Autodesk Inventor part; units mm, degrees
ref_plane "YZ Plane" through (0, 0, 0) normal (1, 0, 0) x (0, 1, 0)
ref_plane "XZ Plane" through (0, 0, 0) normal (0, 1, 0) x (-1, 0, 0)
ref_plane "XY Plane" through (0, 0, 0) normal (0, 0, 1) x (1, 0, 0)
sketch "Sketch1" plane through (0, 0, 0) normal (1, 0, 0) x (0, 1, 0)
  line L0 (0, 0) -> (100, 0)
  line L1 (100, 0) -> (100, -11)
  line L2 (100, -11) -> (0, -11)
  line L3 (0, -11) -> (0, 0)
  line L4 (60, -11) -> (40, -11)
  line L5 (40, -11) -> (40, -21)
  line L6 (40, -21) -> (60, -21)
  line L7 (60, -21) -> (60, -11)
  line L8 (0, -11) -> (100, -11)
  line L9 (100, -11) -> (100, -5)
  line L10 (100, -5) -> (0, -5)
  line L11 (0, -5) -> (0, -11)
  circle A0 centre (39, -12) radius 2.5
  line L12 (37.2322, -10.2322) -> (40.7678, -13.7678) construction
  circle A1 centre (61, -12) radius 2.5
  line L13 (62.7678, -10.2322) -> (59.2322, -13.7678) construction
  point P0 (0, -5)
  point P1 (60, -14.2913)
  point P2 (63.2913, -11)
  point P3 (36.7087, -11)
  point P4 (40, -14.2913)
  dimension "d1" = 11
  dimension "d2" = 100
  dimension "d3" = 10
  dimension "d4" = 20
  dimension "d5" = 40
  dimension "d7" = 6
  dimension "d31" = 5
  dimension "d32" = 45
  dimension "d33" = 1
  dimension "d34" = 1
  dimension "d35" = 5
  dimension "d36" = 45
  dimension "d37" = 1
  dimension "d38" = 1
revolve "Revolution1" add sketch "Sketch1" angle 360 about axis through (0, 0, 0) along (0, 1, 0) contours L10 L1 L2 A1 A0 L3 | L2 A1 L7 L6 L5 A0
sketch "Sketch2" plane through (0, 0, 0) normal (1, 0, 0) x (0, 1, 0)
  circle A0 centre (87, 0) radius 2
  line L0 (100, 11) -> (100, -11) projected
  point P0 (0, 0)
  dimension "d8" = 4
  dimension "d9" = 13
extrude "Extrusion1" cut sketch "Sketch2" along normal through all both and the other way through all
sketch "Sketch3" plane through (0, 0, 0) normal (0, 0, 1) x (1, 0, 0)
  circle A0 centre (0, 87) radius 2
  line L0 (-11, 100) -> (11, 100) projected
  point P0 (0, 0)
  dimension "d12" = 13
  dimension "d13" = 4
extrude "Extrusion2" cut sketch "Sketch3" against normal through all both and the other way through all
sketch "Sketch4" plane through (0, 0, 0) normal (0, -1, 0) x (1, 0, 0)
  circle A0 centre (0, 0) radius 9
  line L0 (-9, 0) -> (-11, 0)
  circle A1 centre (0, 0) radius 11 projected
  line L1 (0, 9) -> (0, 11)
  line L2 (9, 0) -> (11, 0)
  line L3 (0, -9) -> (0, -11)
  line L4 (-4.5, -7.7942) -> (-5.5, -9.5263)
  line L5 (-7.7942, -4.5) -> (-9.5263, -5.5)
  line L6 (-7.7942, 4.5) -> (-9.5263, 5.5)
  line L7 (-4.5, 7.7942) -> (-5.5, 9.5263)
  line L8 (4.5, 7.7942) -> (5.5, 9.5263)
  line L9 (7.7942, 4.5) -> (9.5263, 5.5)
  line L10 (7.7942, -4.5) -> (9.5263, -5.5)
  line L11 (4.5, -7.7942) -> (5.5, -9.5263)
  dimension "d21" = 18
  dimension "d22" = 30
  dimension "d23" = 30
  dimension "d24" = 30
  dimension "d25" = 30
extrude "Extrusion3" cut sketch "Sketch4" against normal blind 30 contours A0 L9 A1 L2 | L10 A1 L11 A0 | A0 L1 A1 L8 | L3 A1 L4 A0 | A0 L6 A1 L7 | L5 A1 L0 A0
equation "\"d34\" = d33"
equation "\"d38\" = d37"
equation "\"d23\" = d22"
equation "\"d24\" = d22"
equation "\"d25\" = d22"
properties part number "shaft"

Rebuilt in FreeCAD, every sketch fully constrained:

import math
import FreeCAD as App
import Part
import Sketcher
from FreeCAD import Vector
Q = App.Units.Quantity

doc = App.newDocument("Part")
params = doc.addObject("Spreadsheet::Sheet", "Params")
for row, (alias, value) in enumerate([
    ("sketch1_radius", "2.5 mm"),
    ("sketch1_width", "100 mm"),
    ("sketch1_width2", "20 mm"),
    ("sketch1_height", "6 mm"),
    ("sketch1_width3", "1 mm"),
    ("revolution_angle", "360 deg"),
    ("sketch2_diameter", "4 mm"),
    ("sketch3_diameter", "4 mm"),
    ("sketch4_radius", "9 mm"),
    ("sketch4_radius2", "11 mm"),
    ("pocket3_length", "30 mm"),
], start=1):
    params.set(f"A{row}", alias)
    params.set(f"B{row}", "=" + value)
    params.setAlias(f"B{row}", alias)

body = doc.addObject("PartDesign::Body", "Body")

# Sketch on YZ plane
sketch1 = body.newObject("Sketcher::SketchObject", "Sketch")
sketch1.AttachmentSupport = (doc.getObject("YZ_Plane"), [""])
sketch1.MapMode = "FlatFace"
sketch1.addGeometry(Part.LineSegment(Vector(100, -5, 0), Vector(0, -5, 0)), False)
sketch1.addGeometry(Part.LineSegment(Vector(0, -5, 0), Vector(0, -11, 0)), False)
sketch1.addGeometry(Part.LineSegment(Vector(0, -11, 0), Vector(36.7, -11, 0)), False)
sketch1.addGeometry(Part.ArcOfCircle(Part.Circle(Vector(39, -12, 0), Vector(0, 0, 1), 2.5), math.radians(-66), math.radians(156)), False)
sketch1.addGeometry(Part.LineSegment(Vector(40, -14.3, 0), Vector(40, -21, 0)), False)
sketch1.addGeometry(Part.LineSegment(Vector(40, -21, 0), Vector(60, -21, 0)), False)
sketch1.addGeometry(Part.LineSegment(Vector(60, -21, 0), Vector(60, -14.3, 0)), False)
sketch1.addGeometry(Part.ArcOfCircle(Part.Circle(Vector(61, -12, 0), Vector(0, 0, 1), 2.5), math.radians(24), math.radians(246)), False)
sketch1.addGeometry(Part.LineSegment(Vector(63.3, -11, 0), Vector(100, -11, 0)), False)
sketch1.addGeometry(Part.LineSegment(Vector(100, -11, 0), Vector(100, -5, 0)), False)
sketch1.addConstraint(Sketcher.Constraint("Coincident", 0, 2, 1, 1))
sketch1.addConstraint(Sketcher.Constraint("Coincident", 1, 2, 2, 1))
sketch1.addConstraint(Sketcher.Constraint("Coincident", 2, 2, 3, 2))
sketch1.addConstraint(Sketcher.Constraint("Coincident", 3, 1, 4, 1))
sketch1.addConstraint(Sketcher.Constraint("Coincident", 4, 2, 5, 1))
sketch1.addConstraint(Sketcher.Constraint("Coincident", 5, 2, 6, 1))
sketch1.addConstraint(Sketcher.Constraint("Coincident", 6, 2, 7, 2))
sketch1.addConstraint(Sketcher.Constraint("Coincident", 7, 1, 8, 1))
sketch1.addConstraint(Sketcher.Constraint("Coincident", 8, 2, 9, 1))
sketch1.addConstraint(Sketcher.Constraint("Coincident", 9, 2, 0, 1))
sketch1.addConstraint(Sketcher.Constraint("Horizontal", 0))
sketch1.addConstraint(Sketcher.Constraint("Vertical", 1))
sketch1.addConstraint(Sketcher.Constraint("Horizontal", 2))
sketch1.addConstraint(Sketcher.Constraint("Vertical", 4))
sketch1.addConstraint(Sketcher.Constraint("Horizontal", 5))
sketch1.addConstraint(Sketcher.Constraint("Vertical", 6))
sketch1.addConstraint(Sketcher.Constraint("Horizontal", 8))
sketch1.addConstraint(Sketcher.Constraint("Vertical", 9))
sketch1.addConstraint(Sketcher.Constraint("Equal", 3, 7))
sketch1.addConstraint(Sketcher.Constraint("PointOnObject", 0, 2, -2))
sketch1.addConstraint(Sketcher.Constraint("Horizontal", 3, 3, 7, 3))
sketch1.addConstraint(Sketcher.Constraint("Horizontal", 3, 1, 6, 2))
sketch1.addConstraint(Sketcher.Constraint("Horizontal", 2, 2, 7, 1))
sketch1.addConstraint(Sketcher.Constraint("Equal", 2, 8))
sketch1.addConstraint(Sketcher.Constraint("Radius", 3, Q("2.5 mm")))
sketch1.addConstraint(Sketcher.Constraint("DistanceX", 0, 2, 0, 1, Q("100 mm")))
sketch1.addConstraint(Sketcher.Constraint("DistanceX", 5, 1, 5, 2, Q("20 mm")))
sketch1.addConstraint(Sketcher.Constraint("DistanceY", 1, 2, 1, 1, Q("6 mm")))
sketch1.addConstraint(Sketcher.Constraint("DistanceY", 0, 2, -1, 1, Q("5 mm")))
sketch1.addConstraint(Sketcher.Constraint("DistanceY", 3, 3, 1, 2, Q("1 mm")))
sketch1.addConstraint(Sketcher.Constraint("DistanceX", 3, 3, 3, 1, Q("1 mm")))
sketch1.addConstraint(Sketcher.Constraint("DistanceY", 4, 2, 2, 2, Q("10 mm")))
sketch1.setExpression("Constraints[24]", "Params.sketch1_radius")
sketch1.setExpression("Constraints[25]", "Params.sketch1_width")
sketch1.setExpression("Constraints[26]", "Params.sketch1_width2")
sketch1.setExpression("Constraints[27]", "Params.sketch1_height")
sketch1.setExpression("Constraints[30]", "Params.sketch1_width3")
revolution = body.newObject("PartDesign::Revolution", "Revolution")
revolution.Profile = sketch1
revolution.ReferenceAxis = (sketch1, ["H_Axis"])
revolution.setExpression("Angle", "Params.revolution_angle")

# Sketch on YZ plane
sketch2 = body.newObject("Sketcher::SketchObject", "Sketch001")
sketch2.AttachmentSupport = (doc.getObject("YZ_Plane"), [""])
sketch2.MapMode = "FlatFace"
sketch2.addGeometry(Part.Circle(Vector(87, 0, 0), Vector(0, 0, 1), 2), False)
sketch2.addConstraint(Sketcher.Constraint("PointOnObject", 0, 3, -1))
sketch2.addConstraint(Sketcher.Constraint("Diameter", 0, Q("4 mm")))
sketch2.addConstraint(Sketcher.Constraint("DistanceX", -1, 1, 0, 3, Q("87 mm")))
sketch2.setExpression("Constraints[1]", "Params.sketch2_diameter")
pocket1 = body.newObject("PartDesign::Pocket", "Pocket")
pocket1.Profile = sketch2
pocket1.Type = "ThroughAll"
pocket1.Midplane = True

# Sketch on XY plane
sketch3 = body.newObject("Sketcher::SketchObject", "Sketch002")
sketch3.AttachmentSupport = (doc.getObject("XY_Plane"), [""])
sketch3.MapMode = "FlatFace"
sketch3.addGeometry(Part.Circle(Vector(0, 87, 0), Vector(0, 0, 1), 2), False)
sketch3.addConstraint(Sketcher.Constraint("PointOnObject", 0, 3, -2))
sketch3.addConstraint(Sketcher.Constraint("Diameter", 0, Q("4 mm")))
sketch3.addConstraint(Sketcher.Constraint("DistanceY", -1, 1, 0, 3, Q("87 mm")))
sketch3.setExpression("Constraints[1]", "Params.sketch3_diameter")
pocket2 = body.newObject("PartDesign::Pocket", "Pocket001")
pocket2.Profile = sketch3
pocket2.Type = "ThroughAll"
pocket2.Midplane = True

# Sketch on XZ plane
sketch4 = body.newObject("Sketcher::SketchObject", "Sketch003")
sketch4.AttachmentSupport = (doc.getObject("XZ_Plane"), [""])
sketch4.MapMode = "FlatFace"
sketch4.addGeometry(Part.ArcOfCircle(Part.Circle(Vector(0, 0, 0), Vector(0, 0, 1), 9), math.radians(0), math.radians(30)), False)
sketch4.addGeometry(Part.LineSegment(Vector(9, 0, 0), Vector(11, 0, 0)), False)
sketch4.addGeometry(Part.ArcOfCircle(Part.Circle(Vector(0, 0, 0), Vector(0, 0, 1), 11), math.radians(0), math.radians(30)), False)
sketch4.addGeometry(Part.LineSegment(Vector(9.5, 5.5, 0), Vector(7.8, 4.5, 0)), False)
sketch4.addGeometry(Part.LineSegment(Vector(9.5, -5.5, 0), Vector(7.8, -4.5, 0)), False)
sketch4.addGeometry(Part.ArcOfCircle(Part.Circle(Vector(0, 0, 0), Vector(0, 0, 1), 9), math.radians(-60), math.radians(-30)), False)
sketch4.addGeometry(Part.LineSegment(Vector(4.5, -7.8, 0), Vector(5.5, -9.5, 0)), False)
sketch4.addGeometry(Part.ArcOfCircle(Part.Circle(Vector(0, 0, 0), Vector(0, 0, 1), 11), math.radians(-60), math.radians(-30)), False)
sketch4.addGeometry(Part.ArcOfCircle(Part.Circle(Vector(0, 0, 0), Vector(0, 0, 1), 9), math.radians(60), math.radians(90)), False)
sketch4.addGeometry(Part.LineSegment(Vector(4.5, 7.8, 0), Vector(5.5, 9.5, 0)), False)
sketch4.addGeometry(Part.ArcOfCircle(Part.Circle(Vector(0, 0, 0), Vector(0, 0, 1), 11), math.radians(60), math.radians(90)), False)
sketch4.addGeometry(Part.LineSegment(Vector(0, 11, 0), Vector(0, 9, 0)), False)
sketch4.addGeometry(Part.LineSegment(Vector(0, -11, 0), Vector(0, -9, 0)), False)
sketch4.addGeometry(Part.ArcOfCircle(Part.Circle(Vector(0, 0, 0), Vector(0, 0, 1), 9), math.radians(-120), math.radians(-90)), False)
sketch4.addGeometry(Part.LineSegment(Vector(-4.5, -7.8, 0), Vector(-5.5, -9.5, 0)), False)
sketch4.addGeometry(Part.ArcOfCircle(Part.Circle(Vector(0, 0, 0), Vector(0, 0, 1), 11), math.radians(-120), math.radians(-90)), False)
sketch4.addGeometry(Part.ArcOfCircle(Part.Circle(Vector(0, 0, 0), Vector(0, 0, 1), 9), math.radians(120), math.radians(150)), False)
sketch4.addGeometry(Part.LineSegment(Vector(-4.5, 7.8, 0), Vector(-5.5, 9.5, 0)), False)
sketch4.addGeometry(Part.ArcOfCircle(Part.Circle(Vector(0, 0, 0), Vector(0, 0, 1), 11), math.radians(120), math.radians(150)), False)
sketch4.addGeometry(Part.LineSegment(Vector(-9.5, 5.5, 0), Vector(-7.8, 4.5, 0)), False)
sketch4.addGeometry(Part.LineSegment(Vector(-9.5, -5.5, 0), Vector(-7.8, -4.5, 0)), False)
sketch4.addGeometry(Part.ArcOfCircle(Part.Circle(Vector(0, 0, 0), Vector(0, 0, 1), 9), math.radians(180), math.radians(210)), False)
sketch4.addGeometry(Part.LineSegment(Vector(-9, 0, 0), Vector(-11, 0, 0)), False)
sketch4.addGeometry(Part.ArcOfCircle(Part.Circle(Vector(0, 0, 0), Vector(0, 0, 1), 11), math.radians(180), math.radians(210)), False)
sketch4.addConstraint(Sketcher.Constraint("Coincident", 0, 1, 1, 1))
sketch4.addConstraint(Sketcher.Constraint("Coincident", 1, 2, 2, 1))
sketch4.addConstraint(Sketcher.Constraint("Coincident", 2, 2, 3, 1))
sketch4.addConstraint(Sketcher.Constraint("Coincident", 3, 2, 0, 2))
sketch4.addConstraint(Sketcher.Constraint("Coincident", 4, 2, 5, 2))
sketch4.addConstraint(Sketcher.Constraint("Coincident", 5, 1, 6, 1))
sketch4.addConstraint(Sketcher.Constraint("Coincident", 6, 2, 7, 1))
sketch4.addConstraint(Sketcher.Constraint("Coincident", 7, 2, 4, 1))
sketch4.addConstraint(Sketcher.Constraint("Coincident", 8, 1, 9, 1))
sketch4.addConstraint(Sketcher.Constraint("Coincident", 9, 2, 10, 1))
sketch4.addConstraint(Sketcher.Constraint("Coincident", 10, 2, 11, 1))
sketch4.addConstraint(Sketcher.Constraint("Coincident", 11, 2, 8, 2))
sketch4.addConstraint(Sketcher.Constraint("Coincident", 12, 2, 13, 2))
sketch4.addConstraint(Sketcher.Constraint("Coincident", 13, 1, 14, 1))
sketch4.addConstraint(Sketcher.Constraint("Coincident", 14, 2, 15, 1))
sketch4.addConstraint(Sketcher.Constraint("Coincident", 15, 2, 12, 1))
sketch4.addConstraint(Sketcher.Constraint("Coincident", 16, 1, 17, 1))
sketch4.addConstraint(Sketcher.Constraint("Coincident", 17, 2, 18, 1))
sketch4.addConstraint(Sketcher.Constraint("Coincident", 18, 2, 19, 1))
sketch4.addConstraint(Sketcher.Constraint("Coincident", 19, 2, 16, 2))
sketch4.addConstraint(Sketcher.Constraint("Coincident", 20, 2, 21, 2))
sketch4.addConstraint(Sketcher.Constraint("Coincident", 21, 1, 22, 1))
sketch4.addConstraint(Sketcher.Constraint("Coincident", 22, 2, 23, 1))
sketch4.addConstraint(Sketcher.Constraint("Coincident", 23, 2, 20, 1))
sketch4.addConstraint(Sketcher.Constraint("Horizontal", 1))
sketch4.addConstraint(Sketcher.Constraint("Vertical", 11))
sketch4.addConstraint(Sketcher.Constraint("Vertical", 12))
sketch4.addConstraint(Sketcher.Constraint("Horizontal", 22))
sketch4.addConstraint(Sketcher.Constraint("Coincident", 0, 3, -1, 1))
sketch4.addConstraint(Sketcher.Constraint("Coincident", 2, 3, -1, 1))
sketch4.addConstraint(Sketcher.Constraint("Coincident", 5, 3, -1, 1))
sketch4.addConstraint(Sketcher.Constraint("Coincident", 7, 3, -1, 1))
sketch4.addConstraint(Sketcher.Constraint("Coincident", 8, 3, -1, 1))
sketch4.addConstraint(Sketcher.Constraint("Coincident", 10, 3, -1, 1))
sketch4.addConstraint(Sketcher.Constraint("Coincident", 13, 3, -1, 1))
sketch4.addConstraint(Sketcher.Constraint("Coincident", 15, 3, -1, 1))
sketch4.addConstraint(Sketcher.Constraint("Coincident", 16, 3, -1, 1))
sketch4.addConstraint(Sketcher.Constraint("Coincident", 18, 3, -1, 1))
sketch4.addConstraint(Sketcher.Constraint("Coincident", 21, 3, -1, 1))
sketch4.addConstraint(Sketcher.Constraint("Coincident", 23, 3, -1, 1))
sketch4.addConstraint(Sketcher.Constraint("Equal", 0, 5))
sketch4.addConstraint(Sketcher.Constraint("Equal", 2, 7))
sketch4.addConstraint(Sketcher.Constraint("Equal", 5, 8))
sketch4.addConstraint(Sketcher.Constraint("Equal", 7, 10))
sketch4.addConstraint(Sketcher.Constraint("Equal", 8, 13))
sketch4.addConstraint(Sketcher.Constraint("Equal", 10, 15))
sketch4.addConstraint(Sketcher.Constraint("Equal", 13, 16))
sketch4.addConstraint(Sketcher.Constraint("Equal", 15, 18))
sketch4.addConstraint(Sketcher.Constraint("Equal", 16, 21))
sketch4.addConstraint(Sketcher.Constraint("Equal", 18, 23))
sketch4.addConstraint(Sketcher.Constraint("PointOnObject", 0, 1, -1))
sketch4.addConstraint(Sketcher.Constraint("PointOnObject", 10, 2, -2))
sketch4.addConstraint(Sketcher.Constraint("PointOnObject", 12, 2, -2))
sketch4.addConstraint(Sketcher.Constraint("PointOnObject", 21, 1, -1))
sketch4.addConstraint(Sketcher.Constraint("Perpendicular", 3, 6))
sketch4.addConstraint(Sketcher.Constraint("Perpendicular", 4, 9))
sketch4.addConstraint(Sketcher.Constraint("Parallel", 9, 14))
sketch4.addConstraint(Sketcher.Constraint("Parallel", 6, 17))
sketch4.addConstraint(Sketcher.Constraint("Perpendicular", 14, 19))
sketch4.addConstraint(Sketcher.Constraint("Perpendicular", 17, 20))
sketch4.addConstraint(Sketcher.Constraint("Horizontal", 5, 1, 13, 1))
sketch4.addConstraint(Sketcher.Constraint("Horizontal", 6, 2, 14, 2))
sketch4.addConstraint(Sketcher.Constraint("Horizontal", 8, 1, 16, 1))
sketch4.addConstraint(Sketcher.Constraint("Horizontal", 2, 2, 18, 2))
sketch4.addConstraint(Sketcher.Constraint("Horizontal", 4, 2, 20, 2))
sketch4.addConstraint(Sketcher.Constraint("Vertical", 3, 2, 4, 2))
sketch4.addConstraint(Sketcher.Constraint("Vertical", 5, 1, 8, 1))
sketch4.addConstraint(Sketcher.Constraint("Radius", 0, Q("9 mm")))
sketch4.addConstraint(Sketcher.Constraint("Radius", 2, Q("11 mm")))
sketch4.addConstraint(Sketcher.Constraint("Angle", 3, Q("-150.0007 deg")))
sketch4.addConstraint(Sketcher.Constraint("DistanceX", 14, 2, 5, 1, Q("10 mm")))
sketch4.addConstraint(Sketcher.Constraint("DistanceY", -1, 1, 2, 2, Q("5.5 mm")))
sketch4.setExpression("Constraints[67]", "Params.sketch4_radius")
sketch4.setExpression("Constraints[68]", "Params.sketch4_radius2")
pocket3 = body.newObject("PartDesign::Pocket", "Pocket002")
pocket3.Profile = sketch4
pocket3.setExpression("Length", "Params.pocket3_length")

doc.recompute()
